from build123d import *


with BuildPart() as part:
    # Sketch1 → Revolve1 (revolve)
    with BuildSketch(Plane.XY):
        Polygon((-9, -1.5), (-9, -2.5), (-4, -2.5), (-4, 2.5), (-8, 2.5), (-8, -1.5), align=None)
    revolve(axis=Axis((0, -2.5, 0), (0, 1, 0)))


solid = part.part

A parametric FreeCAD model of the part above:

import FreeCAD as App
import Part
import Sketcher

doc = App.newDocument("Part")
body = doc.addObject("PartDesign::Body", "Body")

# Sketch on XY plane
sketch1 = doc.addObject("Sketcher::SketchObject", "Sketch")
body.addObject(sketch1)
sketch1.AttachmentSupport = (doc.XY_Plane, [""])
sketch1.MapMode = "FlatFace"
sketch1.addGeometry(Part.LineSegment(App.Vector(-9, -1.5, 0), App.Vector(-9, -2.5, 0)), False)
sketch1.addGeometry(Part.LineSegment(App.Vector(-9, -2.5, 0), App.Vector(-4, -2.5, 0)), False)
sketch1.addGeometry(Part.LineSegment(App.Vector(-4, -2.5, 0), App.Vector(-4, 2.5, 0)), False)
sketch1.addGeometry(Part.LineSegment(App.Vector(-4, 2.5, 0), App.Vector(-8, 2.5, 0)), False)
sketch1.addGeometry(Part.LineSegment(App.Vector(-8, 2.5, 0), App.Vector(-8, -1.5, 0)), False)
sketch1.addGeometry(Part.LineSegment(App.Vector(-8, -1.5, 0), App.Vector(-9, -1.5, 0)), False)
sketch1.addConstraint(Sketcher.Constraint("Coincident", 0, 2, 1, 1))
sketch1.addConstraint(Sketcher.Constraint("Coincident", 1, 2, 2, 1))
sketch1.addConstraint(Sketcher.Constraint("Coincident", 2, 2, 3, 1))
sketch1.addConstraint(Sketcher.Constraint("Coincident", 3, 2, 4, 1))
sketch1.addConstraint(Sketcher.Constraint("Coincident", 4, 2, 5, 1))
sketch1.addConstraint(Sketcher.Constraint("Coincident", 5, 2, 0, 1))
sketch1.addConstraint(Sketcher.Constraint("Vertical", 0))
sketch1.addConstraint(Sketcher.Constraint("Horizontal", 1))
sketch1.addConstraint(Sketcher.Constraint("Vertical", 2))
sketch1.addConstraint(Sketcher.Constraint("Horizontal", 3))
sketch1.addConstraint(Sketcher.Constraint("Vertical", 4))
sketch1.addConstraint(Sketcher.Constraint("Horizontal", 5))
sketch1.addConstraint(Sketcher.Constraint("Equal", 5, 0))
sketch1.addConstraint(Sketcher.Constraint("Equal", 1, 2))
sketch1.addConstraint(Sketcher.Constraint("DistanceX", 1, 1, 1, 2, 5.0))
sketch1.addConstraint(Sketcher.Constraint("DistanceX", 3, 2, 3, 1, 4.0))
sketch1.addConstraint(Sketcher.Constraint("DistanceX", 0, 2, -1, 1, 9.0))
sketch1.addConstraint(Sketcher.Constraint("DistanceY", 0, 2, -1, 1, 2.5))
revolution = doc.addObject("PartDesign::Revolution", "Revolution")
body.addObject(revolution)
revolution.Profile = sketch1
revolution.ReferenceAxis = (sketch1, ["V_Axis"])
revolution.Angle = 360

doc.recompute()
